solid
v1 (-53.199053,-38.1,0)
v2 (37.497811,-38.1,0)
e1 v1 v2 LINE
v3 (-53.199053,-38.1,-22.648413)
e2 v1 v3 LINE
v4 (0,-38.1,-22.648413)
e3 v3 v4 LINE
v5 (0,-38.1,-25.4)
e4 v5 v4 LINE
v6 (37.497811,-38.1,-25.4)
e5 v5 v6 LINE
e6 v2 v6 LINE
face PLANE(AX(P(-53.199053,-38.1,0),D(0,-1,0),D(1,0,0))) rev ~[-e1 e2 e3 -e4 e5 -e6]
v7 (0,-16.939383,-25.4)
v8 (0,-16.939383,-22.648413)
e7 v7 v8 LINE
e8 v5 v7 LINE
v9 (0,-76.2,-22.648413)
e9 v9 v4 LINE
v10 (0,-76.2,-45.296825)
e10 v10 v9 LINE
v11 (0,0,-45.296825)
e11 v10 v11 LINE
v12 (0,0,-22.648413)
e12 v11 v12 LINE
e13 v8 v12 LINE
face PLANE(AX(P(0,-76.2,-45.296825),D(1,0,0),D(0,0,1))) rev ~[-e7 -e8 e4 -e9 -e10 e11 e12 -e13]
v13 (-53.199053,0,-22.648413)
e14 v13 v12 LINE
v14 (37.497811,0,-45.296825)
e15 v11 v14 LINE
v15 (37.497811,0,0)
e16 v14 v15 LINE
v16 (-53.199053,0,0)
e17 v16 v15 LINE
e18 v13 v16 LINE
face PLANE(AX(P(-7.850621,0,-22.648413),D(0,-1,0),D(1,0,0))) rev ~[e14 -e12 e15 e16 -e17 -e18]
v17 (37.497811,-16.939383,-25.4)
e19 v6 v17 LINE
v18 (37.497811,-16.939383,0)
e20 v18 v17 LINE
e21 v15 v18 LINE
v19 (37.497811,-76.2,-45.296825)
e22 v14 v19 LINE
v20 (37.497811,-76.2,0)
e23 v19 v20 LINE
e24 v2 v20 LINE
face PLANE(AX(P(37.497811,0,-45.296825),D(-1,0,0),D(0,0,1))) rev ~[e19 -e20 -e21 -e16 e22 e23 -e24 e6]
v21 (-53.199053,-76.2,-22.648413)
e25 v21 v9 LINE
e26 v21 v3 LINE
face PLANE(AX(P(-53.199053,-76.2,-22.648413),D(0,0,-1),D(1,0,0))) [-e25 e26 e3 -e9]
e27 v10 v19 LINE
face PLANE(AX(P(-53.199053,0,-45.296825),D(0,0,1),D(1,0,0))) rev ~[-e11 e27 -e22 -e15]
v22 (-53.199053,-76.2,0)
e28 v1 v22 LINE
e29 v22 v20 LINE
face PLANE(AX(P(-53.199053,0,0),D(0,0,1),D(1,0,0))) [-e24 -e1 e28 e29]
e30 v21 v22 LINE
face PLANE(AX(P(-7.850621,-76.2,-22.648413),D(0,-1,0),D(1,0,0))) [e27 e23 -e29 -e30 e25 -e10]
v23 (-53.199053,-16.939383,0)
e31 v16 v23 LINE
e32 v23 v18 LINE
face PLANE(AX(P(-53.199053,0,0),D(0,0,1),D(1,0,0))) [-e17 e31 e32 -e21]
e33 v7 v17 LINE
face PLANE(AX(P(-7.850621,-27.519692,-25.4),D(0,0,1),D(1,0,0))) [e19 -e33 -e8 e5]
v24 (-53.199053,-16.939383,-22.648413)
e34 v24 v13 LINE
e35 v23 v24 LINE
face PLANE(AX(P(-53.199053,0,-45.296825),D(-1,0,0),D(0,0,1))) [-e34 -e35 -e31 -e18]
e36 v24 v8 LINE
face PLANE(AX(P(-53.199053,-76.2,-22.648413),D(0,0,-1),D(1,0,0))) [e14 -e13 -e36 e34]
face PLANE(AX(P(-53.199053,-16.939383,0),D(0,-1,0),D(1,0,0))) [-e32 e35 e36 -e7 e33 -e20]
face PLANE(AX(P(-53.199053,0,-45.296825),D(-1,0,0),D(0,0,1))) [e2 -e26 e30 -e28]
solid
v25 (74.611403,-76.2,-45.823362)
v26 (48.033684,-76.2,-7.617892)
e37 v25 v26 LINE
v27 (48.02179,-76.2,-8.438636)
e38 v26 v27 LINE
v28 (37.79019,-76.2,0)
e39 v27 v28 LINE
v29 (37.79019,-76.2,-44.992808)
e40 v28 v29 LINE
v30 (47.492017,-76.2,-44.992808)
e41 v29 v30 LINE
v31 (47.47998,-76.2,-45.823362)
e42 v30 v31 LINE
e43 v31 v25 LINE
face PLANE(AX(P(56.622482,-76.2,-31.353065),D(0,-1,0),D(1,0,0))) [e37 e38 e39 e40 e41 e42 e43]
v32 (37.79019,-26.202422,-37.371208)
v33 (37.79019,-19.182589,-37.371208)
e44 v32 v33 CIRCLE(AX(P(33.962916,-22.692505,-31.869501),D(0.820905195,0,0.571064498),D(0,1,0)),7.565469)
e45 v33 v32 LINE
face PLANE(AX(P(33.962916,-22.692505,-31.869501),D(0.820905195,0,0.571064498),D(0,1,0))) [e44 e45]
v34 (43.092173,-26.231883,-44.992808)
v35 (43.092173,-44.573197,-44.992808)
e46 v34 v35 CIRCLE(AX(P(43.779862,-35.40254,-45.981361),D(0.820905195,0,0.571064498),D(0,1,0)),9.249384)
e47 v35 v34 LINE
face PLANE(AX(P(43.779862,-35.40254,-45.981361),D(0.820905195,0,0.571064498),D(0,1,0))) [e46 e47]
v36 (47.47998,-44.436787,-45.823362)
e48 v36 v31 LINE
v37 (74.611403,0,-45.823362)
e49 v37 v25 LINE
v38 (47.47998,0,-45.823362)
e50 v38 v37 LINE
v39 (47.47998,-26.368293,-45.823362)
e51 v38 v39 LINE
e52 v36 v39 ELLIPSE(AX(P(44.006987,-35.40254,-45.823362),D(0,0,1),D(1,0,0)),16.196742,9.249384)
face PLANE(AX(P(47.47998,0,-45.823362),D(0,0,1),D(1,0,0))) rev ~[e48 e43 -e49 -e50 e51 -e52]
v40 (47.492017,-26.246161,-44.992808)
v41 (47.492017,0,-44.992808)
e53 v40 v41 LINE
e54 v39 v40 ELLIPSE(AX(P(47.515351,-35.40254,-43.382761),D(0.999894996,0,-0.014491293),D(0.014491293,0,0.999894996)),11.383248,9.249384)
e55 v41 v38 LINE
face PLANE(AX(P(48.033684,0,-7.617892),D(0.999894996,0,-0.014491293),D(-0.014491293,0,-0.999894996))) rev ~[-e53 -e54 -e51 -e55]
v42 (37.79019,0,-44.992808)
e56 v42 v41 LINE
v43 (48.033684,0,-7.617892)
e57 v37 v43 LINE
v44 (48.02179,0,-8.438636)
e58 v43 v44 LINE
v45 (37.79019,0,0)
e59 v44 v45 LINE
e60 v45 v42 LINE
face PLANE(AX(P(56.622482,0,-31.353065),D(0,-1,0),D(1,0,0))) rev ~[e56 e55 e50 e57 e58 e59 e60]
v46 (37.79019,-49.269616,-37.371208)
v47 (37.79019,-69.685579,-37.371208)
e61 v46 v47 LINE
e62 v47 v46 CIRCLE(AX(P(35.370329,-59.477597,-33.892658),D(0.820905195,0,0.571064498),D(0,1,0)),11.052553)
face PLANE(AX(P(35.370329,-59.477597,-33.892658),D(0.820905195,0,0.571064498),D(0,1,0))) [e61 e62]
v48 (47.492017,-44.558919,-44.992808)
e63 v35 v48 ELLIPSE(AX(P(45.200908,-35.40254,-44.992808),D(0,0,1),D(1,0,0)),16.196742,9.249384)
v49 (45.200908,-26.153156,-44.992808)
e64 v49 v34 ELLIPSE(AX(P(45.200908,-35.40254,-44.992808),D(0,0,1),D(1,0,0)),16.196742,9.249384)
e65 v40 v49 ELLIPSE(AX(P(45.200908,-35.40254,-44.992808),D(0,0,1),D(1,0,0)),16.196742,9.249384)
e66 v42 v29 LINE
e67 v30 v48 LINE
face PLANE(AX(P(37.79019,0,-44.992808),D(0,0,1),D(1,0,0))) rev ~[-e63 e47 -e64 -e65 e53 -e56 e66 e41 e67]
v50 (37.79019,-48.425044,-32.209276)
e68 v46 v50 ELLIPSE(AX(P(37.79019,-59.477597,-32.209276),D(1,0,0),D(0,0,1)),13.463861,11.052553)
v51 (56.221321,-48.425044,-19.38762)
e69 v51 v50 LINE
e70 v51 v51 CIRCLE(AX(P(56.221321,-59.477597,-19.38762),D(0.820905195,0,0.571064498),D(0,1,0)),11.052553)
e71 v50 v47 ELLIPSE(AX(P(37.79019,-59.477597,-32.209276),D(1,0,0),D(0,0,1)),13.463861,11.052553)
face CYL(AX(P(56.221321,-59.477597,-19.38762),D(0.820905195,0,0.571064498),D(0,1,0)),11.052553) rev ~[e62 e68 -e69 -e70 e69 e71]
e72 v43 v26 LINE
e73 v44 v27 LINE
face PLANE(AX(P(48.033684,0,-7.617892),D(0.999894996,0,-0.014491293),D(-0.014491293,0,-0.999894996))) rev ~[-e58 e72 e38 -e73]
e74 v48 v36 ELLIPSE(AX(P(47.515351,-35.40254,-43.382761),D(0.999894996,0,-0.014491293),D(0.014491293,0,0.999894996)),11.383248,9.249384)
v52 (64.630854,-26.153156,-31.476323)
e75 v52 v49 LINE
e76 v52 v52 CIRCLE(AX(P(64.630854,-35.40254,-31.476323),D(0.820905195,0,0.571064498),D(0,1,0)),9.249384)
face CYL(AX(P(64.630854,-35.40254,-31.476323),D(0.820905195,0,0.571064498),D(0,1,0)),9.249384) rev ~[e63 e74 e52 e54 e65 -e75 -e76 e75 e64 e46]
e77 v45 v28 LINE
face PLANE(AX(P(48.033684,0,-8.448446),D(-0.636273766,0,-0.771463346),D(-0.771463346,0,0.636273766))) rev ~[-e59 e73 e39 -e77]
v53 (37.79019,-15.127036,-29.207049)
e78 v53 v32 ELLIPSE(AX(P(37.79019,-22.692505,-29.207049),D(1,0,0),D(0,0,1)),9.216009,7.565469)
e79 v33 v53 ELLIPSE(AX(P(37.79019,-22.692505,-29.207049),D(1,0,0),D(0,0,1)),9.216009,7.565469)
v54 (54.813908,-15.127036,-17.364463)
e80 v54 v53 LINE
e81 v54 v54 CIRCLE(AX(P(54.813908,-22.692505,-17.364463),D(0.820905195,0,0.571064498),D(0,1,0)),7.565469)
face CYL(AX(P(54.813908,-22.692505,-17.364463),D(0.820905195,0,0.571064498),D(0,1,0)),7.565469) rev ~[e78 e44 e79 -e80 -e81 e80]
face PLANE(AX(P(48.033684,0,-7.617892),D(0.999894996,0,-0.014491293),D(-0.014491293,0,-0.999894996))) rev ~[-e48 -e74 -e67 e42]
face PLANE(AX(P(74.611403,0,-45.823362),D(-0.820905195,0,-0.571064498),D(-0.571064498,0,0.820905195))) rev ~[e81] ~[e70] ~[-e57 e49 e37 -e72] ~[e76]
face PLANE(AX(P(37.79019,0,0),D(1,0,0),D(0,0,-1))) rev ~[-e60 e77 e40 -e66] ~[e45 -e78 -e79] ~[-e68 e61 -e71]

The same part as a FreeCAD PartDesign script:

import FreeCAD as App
import Part
import Sketcher
Q = App.Units.Quantity


def add_polygon(sketch, points):
    """Adds a closed chain of lines whose ends are joined by coincident constraints."""
    first, n = sketch.GeometryCount, len(points)
    for a, b in zip(points, points[1:] + points[:1]):
        sketch.addGeometry(Part.LineSegment(App.Vector(*a, 0), App.Vector(*b, 0)), False)
    for i in range(n):
        sketch.addConstraint(Sketcher.Constraint("Coincident", first + i, 2, first + (i + 1) % n, 1))

doc = App.newDocument("Part")
body = doc.addObject("PartDesign::Body", "Body")

# Sketch on XZ plane
sketch1 = body.newObject("Sketcher::SketchObject", "Sketch")
sketch1.AttachmentSupport = (doc.getObject("XZ_Plane"), [""])
sketch1.MapMode = "FlatFace"
add_polygon(sketch1, [(-53, 0), (-53, -45), (37, -45), (37, 0)])  # lines 0-3
sketch1.addConstraint(Sketcher.Constraint("Vertical", 0))
sketch1.addConstraint(Sketcher.Constraint("Horizontal", 1))
sketch1.addConstraint(Sketcher.Constraint("Vertical", 2))
sketch1.addConstraint(Sketcher.Constraint("Horizontal", 3))
sketch1.addConstraint(Sketcher.Constraint("PointOnObject", 2, 2, -1))
sketch1.addConstraint(Sketcher.Constraint("DistanceX", 1, 1, 1, 2, Q("90.696864 mm")))
sketch1.addConstraint(Sketcher.Constraint("DistanceY", 0, 2, 0, 1, Q("45.296825 mm")))
sketch1.addConstraint(Sketcher.Constraint("DistanceX", -1, 1, 1, 2, Q("37.497811 mm")))
pad1 = body.newObject("PartDesign::Pad", "Pad")
pad1.Profile = sketch1
pad1.Length = Q("3 in")

# Sketch on XY plane
sketch2 = body.newObject("Sketcher::SketchObject", "Sketch001")
sketch2.AttachmentSupport = (doc.getObject("XY_Plane"), [""])
sketch2.MapMode = "FlatFace"
add_polygon(sketch2, [(-53, -17), (-53, -38), (37, -38), (37, -17)])  # lines 0-3
sketch2.addConstraint(Sketcher.Constraint("Vertical", 0))
sketch2.addConstraint(Sketcher.Constraint("Horizontal", 1))
sketch2.addConstraint(Sketcher.Constraint("Vertical", 2))
sketch2.addConstraint(Sketcher.Constraint("Horizontal", 3))
sketch2.addConstraint(Sketcher.Constraint("DistanceY", 0, 2, -1, 1, Q("1.5 in")))
sketch2.addConstraint(Sketcher.Constraint("DistanceX", 1, 1, 1, 2, Q("90.696864 mm")))
sketch2.addConstraint(Sketcher.Constraint("DistanceY", 0, 2, 0, 1, Q("21.160617 mm")))
sketch2.addConstraint(Sketcher.Constraint("DistanceX", -1, 1, 1, 2, Q("37.497811 mm")))
pocket1 = body.newObject("PartDesign::Pocket", "Pocket")
pocket1.Profile = sketch2
pocket1.Length = Q("1 in")

# Sketch on XZ plane
sketch3 = body.newObject("Sketcher::SketchObject", "Sketch002")
sketch3.AttachmentSupport = (doc.getObject("XZ_Plane"), [""])
sketch3.MapMode = "FlatFace"
sketch3.AttachmentOffset = App.Placement(App.Vector(0, 0, 3 * 25.4), App.Rotation())
add_polygon(sketch3, [(-53, -23), (-53, -45), (0, -45), (0, -23)])  # lines 0-3
sketch3.addConstraint(Sketcher.Constraint("Vertical", 0))
sketch3.addConstraint(Sketcher.Constraint("Horizontal", 1))
sketch3.addConstraint(Sketcher.Constraint("Vertical", 2))
sketch3.addConstraint(Sketcher.Constraint("Horizontal", 3))
sketch3.addConstraint(Sketcher.Constraint("PointOnObject", 1, 2, -2))
sketch3.addConstraint(Sketcher.Constraint("DistanceX", 1, 1, 1, 2, Q("53.199053 mm")))
sketch3.addConstraint(Sketcher.Constraint("DistanceY", 0, 2, 0, 1, Q("22.648413 mm")))
sketch3.addConstraint(Sketcher.Constraint("DistanceY", 0, 2, -1, 1, Q("45.296825 mm")))
pocket2 = body.newObject("PartDesign::Pocket", "Pocket001")
pocket2.Profile = sketch3
pocket2.Length = Q("3 in")
body2 = doc.addObject("PartDesign::Body", "Body001")

# Sketch on XZ plane
sketch4 = body2.newObject("Sketcher::SketchObject", "Sketch003")
sketch4.AttachmentSupport = (doc.getObject("XZ_Plane001"), [""])
sketch4.MapMode = "FlatFace"
add_polygon(sketch4, [(38, 0), (38, -45), (48, -45), (48, -8)])  # lines 0-3
sketch4.addConstraint(Sketcher.Constraint("Vertical", 0))
sketch4.addConstraint(Sketcher.Constraint("Horizontal", 1))
sketch4.addConstraint(Sketcher.Constraint("Vertical", 2))
sketch4.addConstraint(Sketcher.Constraint("PointOnObject", 3, 2, -1))
sketch4.addConstraint(Sketcher.Constraint("DistanceY", 0, 2, 0, 1, Q("44.992808 mm")))
sketch4.addConstraint(Sketcher.Constraint("DistanceX", 1, 1, 1, 2, Q("10.243494 mm")))
sketch4.addConstraint(Sketcher.Constraint("DistanceY", 2, 1, 2, 2, Q("36.544362 mm")))
sketch4.addConstraint(Sketcher.Constraint("DistanceX", -1, 1, 0, 2, Q("37.79019 mm")))
pad2 = body2.newObject("PartDesign::Pad", "Pad001")
pad2.Profile = sketch4
pad2.Length = Q("3 in")

# Sketch on XZ plane
sketch5 = body2.newObject("Sketcher::SketchObject", "Sketch004")
sketch5.AttachmentSupport = (doc.getObject("XZ_Plane001"), [""])
sketch5.MapMode = "FlatFace"
add_polygon(sketch5, [(75, -46), (48, -8), (47, -46)])  # lines 0-2
sketch5.addConstraint(Sketcher.Constraint("Horizontal", 2))
sketch5.addConstraint(Sketcher.Constraint("Distance", 0, Q("46.54066 mm")))
sketch5.addConstraint(Sketcher.Constraint("Distance", 1, Q("38.209482 mm")))
sketch5.addConstraint(Sketcher.Constraint("DistanceX", 2, 1, 2, 2, Q("27.131423 mm")))
sketch5.addConstraint(Sketcher.Constraint("DistanceX", -1, 1, 1, 2, Q("47.47998 mm")))
sketch5.addConstraint(Sketcher.Constraint("DistanceY", 1, 2, -1, 1, Q("45.823362 mm")))
pad3 = body2.newObject("PartDesign::Pad", "Pad002")
pad3.Profile = sketch5
pad3.Length = Q("3 in")

# Sketch on an angled plane
sketch6 = body2.newObject("Sketcher::SketchObject", "Sketch005")
sketch6.Placement = App.Placement(App.Vector(28.798006, 0, 20.033396), App.Rotation(App.Vector(0, 1, 0), App.Vector(-0.571064498, 0, 0.820905195), App.Vector(0.820905195, 0, 0.571064498), "ZXY"))
sketch6.addGeometry(Part.Circle(App.Vector(-59, -48, 0), App.Vector(0, 0, 1), 11), False)
sketch6.addConstraint(Sketcher.Constraint("Diameter", 0, Q("22.105106 mm")))
sketch6.addConstraint(Sketcher.Constraint("DistanceY", 0, 3, -1, 1, Q("48.021398 mm")))
sketch6.addConstraint(Sketcher.Constraint("DistanceX", 0, 3, -1, 1, Q("59.477597 mm")))
pocket3 = body2.newObject("PartDesign::Pocket", "Pocket002")
pocket3.Profile = sketch6
pocket3.Length = Q("1 in")

# Sketch on an angled plane
sketch7 = body2.newObject("Sketcher::SketchObject", "Sketch006")
sketch7.Placement = App.Placement(App.Vector(28.798006, 0, 20.033396), App.Rotation(App.Vector(0, 1, 0), App.Vector(-0.571064498, 0, 0.820905195), App.Vector(0.820905195, 0, 0.571064498), "ZXY"))
sketch7.addGeometry(Part.Circle(App.Vector(-23, -46, 0), App.Vector(0, 0, 1), 8), False)
sketch7.addConstraint(Sketcher.Constraint("Diameter", 0, Q("15.130939 mm")))
sketch7.addConstraint(Sketcher.Constraint("DistanceX", 0, 3, -1, 1, Q("22.692505 mm")))
sketch7.addConstraint(Sketcher.Constraint("DistanceY", 0, 3, -1, 1, Q("45.556854 mm")))
pocket4 = body2.newObject("PartDesign::Pocket", "Pocket003")
pocket4.Profile = sketch7
pocket4.Length = Q("1 in")

# Sketch on an angled plane
sketch8 = body2.newObject("Sketcher::SketchObject", "Sketch007")
sketch8.Placement = App.Placement(App.Vector(28.798006, 0, 20.033396), App.Rotation(App.Vector(0, 1, 0), App.Vector(-0.571064498, 0, 0.820905195), App.Vector(0.820905195, 0, 0.571064498), "ZXY"))
sketch8.addGeometry(Part.Circle(App.Vector(-35, -63, 0), App.Vector(0, 0, 1), 9), False)
sketch8.addConstraint(Sketcher.Constraint("Diameter", 0, Q("18.498768 mm")))
sketch8.addConstraint(Sketcher.Constraint("DistanceX", 0, 3, -1, 1, Q("35.40254 mm")))
sketch8.addConstraint(Sketcher.Constraint("DistanceY", 0, 3, -1, 1, Q("62.747464 mm")))
pocket5 = body2.newObject("PartDesign::Pocket", "Pocket004")
pocket5.Profile = sketch8
pocket5.Length = Q("1 in")

doc.recompute()
